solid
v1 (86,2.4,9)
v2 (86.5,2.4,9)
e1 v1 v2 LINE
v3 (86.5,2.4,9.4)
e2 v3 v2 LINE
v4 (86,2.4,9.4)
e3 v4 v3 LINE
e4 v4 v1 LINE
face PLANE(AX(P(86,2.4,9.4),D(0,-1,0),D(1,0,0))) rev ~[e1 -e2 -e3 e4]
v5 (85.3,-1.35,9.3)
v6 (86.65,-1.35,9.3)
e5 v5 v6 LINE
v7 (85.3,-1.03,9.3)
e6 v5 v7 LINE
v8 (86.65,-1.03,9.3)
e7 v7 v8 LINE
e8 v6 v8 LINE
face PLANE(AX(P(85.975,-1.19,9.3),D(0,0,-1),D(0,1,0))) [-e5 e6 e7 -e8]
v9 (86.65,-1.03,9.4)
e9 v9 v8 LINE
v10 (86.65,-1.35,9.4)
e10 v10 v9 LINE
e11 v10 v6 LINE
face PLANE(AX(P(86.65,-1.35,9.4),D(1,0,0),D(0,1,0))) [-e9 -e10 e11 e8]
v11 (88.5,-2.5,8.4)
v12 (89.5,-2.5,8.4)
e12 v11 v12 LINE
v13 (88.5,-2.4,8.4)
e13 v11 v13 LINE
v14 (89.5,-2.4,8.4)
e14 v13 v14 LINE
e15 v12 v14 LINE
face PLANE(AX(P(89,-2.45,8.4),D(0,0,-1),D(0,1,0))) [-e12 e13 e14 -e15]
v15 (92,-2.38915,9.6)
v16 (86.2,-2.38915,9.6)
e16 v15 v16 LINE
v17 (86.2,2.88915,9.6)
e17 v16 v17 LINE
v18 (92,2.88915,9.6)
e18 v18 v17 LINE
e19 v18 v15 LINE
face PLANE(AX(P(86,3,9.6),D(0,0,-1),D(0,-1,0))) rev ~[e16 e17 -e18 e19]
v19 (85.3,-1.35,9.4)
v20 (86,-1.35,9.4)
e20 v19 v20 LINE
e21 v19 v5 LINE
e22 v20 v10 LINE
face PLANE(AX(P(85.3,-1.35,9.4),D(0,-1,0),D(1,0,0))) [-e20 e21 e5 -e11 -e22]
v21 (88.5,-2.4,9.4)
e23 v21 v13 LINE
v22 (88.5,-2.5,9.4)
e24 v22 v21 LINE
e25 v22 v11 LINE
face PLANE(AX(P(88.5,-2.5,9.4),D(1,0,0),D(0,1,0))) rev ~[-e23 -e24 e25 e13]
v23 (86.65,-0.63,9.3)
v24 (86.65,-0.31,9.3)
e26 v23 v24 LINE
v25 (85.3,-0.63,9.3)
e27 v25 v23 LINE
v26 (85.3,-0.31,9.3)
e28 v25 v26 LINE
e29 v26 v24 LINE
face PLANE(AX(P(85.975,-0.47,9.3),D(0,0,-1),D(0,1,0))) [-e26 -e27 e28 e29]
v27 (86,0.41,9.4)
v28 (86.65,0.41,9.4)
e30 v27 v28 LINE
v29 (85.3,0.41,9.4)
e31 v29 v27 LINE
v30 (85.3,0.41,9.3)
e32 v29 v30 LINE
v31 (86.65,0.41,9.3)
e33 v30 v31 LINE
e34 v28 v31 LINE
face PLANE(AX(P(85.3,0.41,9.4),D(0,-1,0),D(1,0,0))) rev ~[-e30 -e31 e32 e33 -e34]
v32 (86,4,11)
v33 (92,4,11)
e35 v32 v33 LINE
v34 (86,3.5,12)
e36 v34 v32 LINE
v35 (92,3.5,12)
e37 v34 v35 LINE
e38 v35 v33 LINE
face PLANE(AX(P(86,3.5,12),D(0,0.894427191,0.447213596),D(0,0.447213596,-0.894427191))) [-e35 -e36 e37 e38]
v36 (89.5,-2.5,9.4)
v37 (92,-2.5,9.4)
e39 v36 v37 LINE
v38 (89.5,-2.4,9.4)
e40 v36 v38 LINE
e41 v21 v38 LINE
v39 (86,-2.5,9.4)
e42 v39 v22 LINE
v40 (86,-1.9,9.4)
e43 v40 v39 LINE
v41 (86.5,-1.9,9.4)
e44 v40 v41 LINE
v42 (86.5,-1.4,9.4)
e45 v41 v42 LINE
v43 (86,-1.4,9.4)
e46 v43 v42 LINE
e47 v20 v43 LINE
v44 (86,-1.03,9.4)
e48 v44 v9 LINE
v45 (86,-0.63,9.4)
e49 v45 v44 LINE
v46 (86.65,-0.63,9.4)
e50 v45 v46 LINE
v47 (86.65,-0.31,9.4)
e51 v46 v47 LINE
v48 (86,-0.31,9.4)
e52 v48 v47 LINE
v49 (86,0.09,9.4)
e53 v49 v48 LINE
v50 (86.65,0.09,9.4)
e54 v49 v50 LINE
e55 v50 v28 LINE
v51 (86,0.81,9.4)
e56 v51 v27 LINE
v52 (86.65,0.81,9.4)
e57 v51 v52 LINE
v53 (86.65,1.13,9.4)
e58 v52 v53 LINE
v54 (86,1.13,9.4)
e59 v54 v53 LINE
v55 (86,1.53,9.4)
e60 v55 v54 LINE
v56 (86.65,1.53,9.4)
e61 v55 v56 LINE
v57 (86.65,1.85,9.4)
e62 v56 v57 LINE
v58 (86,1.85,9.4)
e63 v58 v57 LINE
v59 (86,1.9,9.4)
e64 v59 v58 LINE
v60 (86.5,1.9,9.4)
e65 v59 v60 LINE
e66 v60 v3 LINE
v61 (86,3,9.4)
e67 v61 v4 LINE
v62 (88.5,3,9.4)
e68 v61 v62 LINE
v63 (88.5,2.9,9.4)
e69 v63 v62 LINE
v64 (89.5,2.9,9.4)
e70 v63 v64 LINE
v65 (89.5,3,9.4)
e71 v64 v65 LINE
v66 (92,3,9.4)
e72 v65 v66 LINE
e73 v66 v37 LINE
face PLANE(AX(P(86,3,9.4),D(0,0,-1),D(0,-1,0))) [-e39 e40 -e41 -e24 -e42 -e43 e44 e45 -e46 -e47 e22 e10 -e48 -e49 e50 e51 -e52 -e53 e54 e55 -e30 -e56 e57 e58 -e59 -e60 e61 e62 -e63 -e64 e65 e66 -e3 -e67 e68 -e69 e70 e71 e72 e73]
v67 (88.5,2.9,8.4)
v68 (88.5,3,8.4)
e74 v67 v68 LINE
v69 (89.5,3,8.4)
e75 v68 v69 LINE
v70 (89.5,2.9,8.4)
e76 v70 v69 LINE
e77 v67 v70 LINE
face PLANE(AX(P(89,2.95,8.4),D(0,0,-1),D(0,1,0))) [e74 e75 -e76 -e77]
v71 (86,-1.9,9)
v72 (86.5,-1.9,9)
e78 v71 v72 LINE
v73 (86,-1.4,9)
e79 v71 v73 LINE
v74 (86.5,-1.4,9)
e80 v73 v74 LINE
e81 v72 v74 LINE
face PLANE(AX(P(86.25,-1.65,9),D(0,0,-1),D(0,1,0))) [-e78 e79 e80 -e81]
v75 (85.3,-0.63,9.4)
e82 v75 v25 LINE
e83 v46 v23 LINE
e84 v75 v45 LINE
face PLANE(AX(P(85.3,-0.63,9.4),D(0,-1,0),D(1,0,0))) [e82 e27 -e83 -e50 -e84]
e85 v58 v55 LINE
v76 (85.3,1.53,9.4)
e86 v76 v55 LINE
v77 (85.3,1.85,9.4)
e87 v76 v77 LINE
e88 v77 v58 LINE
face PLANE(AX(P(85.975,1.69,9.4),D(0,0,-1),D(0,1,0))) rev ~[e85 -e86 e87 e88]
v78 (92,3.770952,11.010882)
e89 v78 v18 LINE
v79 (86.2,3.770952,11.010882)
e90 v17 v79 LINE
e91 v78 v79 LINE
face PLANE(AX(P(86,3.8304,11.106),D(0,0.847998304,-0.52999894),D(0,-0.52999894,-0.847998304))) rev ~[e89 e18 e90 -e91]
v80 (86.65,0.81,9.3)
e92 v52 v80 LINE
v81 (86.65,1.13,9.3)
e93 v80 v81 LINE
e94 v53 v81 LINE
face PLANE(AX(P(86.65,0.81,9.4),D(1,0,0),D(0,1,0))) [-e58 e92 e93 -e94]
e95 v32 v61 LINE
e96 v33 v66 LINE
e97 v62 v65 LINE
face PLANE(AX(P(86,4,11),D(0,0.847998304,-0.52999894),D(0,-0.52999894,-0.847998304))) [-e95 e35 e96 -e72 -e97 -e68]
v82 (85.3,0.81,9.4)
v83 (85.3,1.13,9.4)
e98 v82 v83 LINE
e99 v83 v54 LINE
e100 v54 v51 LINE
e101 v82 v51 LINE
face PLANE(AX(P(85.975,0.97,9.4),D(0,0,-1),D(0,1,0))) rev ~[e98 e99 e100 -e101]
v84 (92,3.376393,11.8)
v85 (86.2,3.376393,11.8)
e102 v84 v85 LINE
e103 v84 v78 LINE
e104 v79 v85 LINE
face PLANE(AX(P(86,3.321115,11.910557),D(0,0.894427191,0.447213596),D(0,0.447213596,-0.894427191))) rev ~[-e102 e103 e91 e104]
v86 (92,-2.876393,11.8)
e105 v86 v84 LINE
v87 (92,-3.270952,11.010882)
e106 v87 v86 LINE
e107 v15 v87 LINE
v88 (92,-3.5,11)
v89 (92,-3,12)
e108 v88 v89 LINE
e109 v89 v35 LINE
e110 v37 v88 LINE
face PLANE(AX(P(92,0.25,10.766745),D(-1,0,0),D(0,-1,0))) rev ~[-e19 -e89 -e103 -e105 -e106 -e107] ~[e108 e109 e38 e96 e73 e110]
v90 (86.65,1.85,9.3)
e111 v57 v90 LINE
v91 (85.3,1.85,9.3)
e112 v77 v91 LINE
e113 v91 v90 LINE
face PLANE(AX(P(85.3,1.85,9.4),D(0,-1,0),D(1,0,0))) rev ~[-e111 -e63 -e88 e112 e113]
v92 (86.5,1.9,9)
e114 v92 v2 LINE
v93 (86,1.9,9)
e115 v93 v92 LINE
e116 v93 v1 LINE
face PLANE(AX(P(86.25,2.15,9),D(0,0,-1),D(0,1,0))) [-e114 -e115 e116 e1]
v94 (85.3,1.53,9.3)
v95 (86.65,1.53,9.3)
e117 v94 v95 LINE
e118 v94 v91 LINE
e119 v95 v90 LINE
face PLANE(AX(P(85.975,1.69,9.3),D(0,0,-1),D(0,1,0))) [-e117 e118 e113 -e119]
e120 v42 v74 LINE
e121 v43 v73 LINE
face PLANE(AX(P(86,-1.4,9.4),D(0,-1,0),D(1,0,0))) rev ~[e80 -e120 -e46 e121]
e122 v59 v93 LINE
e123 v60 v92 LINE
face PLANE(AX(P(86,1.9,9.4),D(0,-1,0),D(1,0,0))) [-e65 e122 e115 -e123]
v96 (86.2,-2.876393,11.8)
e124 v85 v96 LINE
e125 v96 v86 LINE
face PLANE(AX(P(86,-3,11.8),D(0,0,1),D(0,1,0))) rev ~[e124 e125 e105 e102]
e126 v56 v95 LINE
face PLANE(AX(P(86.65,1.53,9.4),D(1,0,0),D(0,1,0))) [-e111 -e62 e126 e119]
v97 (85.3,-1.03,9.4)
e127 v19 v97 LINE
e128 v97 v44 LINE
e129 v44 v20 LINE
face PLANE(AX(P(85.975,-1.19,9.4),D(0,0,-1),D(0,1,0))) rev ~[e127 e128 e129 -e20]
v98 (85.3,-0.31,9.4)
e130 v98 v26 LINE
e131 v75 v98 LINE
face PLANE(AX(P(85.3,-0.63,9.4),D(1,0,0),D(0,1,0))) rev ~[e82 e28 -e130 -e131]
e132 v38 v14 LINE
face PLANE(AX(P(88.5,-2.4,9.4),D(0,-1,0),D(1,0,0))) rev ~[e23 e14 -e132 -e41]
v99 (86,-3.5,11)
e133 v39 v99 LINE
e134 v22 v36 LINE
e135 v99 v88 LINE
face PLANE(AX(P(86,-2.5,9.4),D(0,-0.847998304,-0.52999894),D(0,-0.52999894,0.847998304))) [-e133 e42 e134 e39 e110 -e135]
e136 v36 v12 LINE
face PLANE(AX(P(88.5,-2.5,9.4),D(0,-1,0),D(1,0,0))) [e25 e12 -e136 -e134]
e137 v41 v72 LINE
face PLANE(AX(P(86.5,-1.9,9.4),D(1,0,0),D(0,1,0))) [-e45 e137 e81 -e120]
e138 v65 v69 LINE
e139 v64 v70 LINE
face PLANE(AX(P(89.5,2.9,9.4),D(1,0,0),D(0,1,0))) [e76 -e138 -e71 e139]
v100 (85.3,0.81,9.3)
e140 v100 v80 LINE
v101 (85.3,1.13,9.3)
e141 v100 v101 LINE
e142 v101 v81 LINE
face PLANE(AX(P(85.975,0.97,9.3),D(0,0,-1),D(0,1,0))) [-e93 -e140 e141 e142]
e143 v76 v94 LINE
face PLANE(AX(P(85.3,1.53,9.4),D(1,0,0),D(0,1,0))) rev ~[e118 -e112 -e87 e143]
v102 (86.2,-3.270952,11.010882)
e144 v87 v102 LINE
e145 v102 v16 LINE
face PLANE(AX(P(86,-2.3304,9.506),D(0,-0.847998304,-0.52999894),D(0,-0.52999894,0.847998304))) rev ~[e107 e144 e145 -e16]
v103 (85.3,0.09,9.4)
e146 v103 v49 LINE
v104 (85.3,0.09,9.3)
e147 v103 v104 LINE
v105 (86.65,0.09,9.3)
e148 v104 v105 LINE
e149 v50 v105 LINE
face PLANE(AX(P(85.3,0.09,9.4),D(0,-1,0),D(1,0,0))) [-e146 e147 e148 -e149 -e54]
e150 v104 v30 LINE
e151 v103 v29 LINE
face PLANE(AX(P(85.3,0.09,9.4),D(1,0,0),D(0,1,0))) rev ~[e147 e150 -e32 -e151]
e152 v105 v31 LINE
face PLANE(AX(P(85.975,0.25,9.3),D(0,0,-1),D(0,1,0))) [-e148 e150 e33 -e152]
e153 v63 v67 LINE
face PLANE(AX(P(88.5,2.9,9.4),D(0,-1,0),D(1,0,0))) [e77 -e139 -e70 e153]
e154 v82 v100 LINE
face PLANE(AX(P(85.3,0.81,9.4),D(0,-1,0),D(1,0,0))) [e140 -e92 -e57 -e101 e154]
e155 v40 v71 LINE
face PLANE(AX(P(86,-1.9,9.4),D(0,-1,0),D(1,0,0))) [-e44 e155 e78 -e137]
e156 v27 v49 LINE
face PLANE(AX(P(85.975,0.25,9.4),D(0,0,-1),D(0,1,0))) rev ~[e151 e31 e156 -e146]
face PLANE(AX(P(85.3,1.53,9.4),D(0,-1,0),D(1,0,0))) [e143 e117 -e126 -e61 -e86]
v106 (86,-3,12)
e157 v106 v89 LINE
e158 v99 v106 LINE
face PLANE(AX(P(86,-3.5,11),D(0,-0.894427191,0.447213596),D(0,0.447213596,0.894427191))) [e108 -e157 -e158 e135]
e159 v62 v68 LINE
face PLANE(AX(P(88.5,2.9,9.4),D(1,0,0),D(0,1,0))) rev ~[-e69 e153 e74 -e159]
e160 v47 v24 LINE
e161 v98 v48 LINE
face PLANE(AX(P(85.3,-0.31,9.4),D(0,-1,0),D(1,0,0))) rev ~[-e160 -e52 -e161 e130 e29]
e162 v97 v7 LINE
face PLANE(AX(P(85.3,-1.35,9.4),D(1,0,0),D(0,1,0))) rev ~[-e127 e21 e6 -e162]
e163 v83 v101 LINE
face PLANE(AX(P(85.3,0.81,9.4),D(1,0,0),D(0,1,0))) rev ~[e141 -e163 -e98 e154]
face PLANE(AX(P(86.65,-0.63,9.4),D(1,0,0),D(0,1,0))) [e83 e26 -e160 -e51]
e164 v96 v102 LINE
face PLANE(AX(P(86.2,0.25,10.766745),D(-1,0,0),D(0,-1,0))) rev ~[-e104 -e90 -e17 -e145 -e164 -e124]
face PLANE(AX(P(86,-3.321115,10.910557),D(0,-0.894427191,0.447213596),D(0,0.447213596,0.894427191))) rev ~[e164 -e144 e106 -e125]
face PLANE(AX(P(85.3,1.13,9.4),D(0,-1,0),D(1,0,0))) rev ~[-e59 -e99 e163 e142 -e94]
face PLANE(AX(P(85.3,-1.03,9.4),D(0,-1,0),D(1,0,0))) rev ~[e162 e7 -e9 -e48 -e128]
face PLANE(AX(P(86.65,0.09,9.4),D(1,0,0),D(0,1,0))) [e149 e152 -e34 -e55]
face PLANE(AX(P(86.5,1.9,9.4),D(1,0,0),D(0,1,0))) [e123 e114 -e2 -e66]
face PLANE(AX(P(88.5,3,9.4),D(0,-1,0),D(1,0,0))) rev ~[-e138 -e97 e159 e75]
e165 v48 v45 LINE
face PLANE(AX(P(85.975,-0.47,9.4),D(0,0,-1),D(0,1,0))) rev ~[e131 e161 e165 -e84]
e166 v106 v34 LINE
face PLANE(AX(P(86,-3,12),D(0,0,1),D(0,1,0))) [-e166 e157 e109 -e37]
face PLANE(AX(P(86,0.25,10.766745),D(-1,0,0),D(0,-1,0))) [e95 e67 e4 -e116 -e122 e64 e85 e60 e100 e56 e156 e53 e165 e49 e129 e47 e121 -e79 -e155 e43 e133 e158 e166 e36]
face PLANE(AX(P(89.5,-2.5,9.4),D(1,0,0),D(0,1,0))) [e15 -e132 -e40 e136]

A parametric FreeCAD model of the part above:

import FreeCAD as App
import Part
import Sketcher
Q = App.Units.Quantity


def faces_at(feature, points):
    """Names of the faces that lie closest to the given points."""
    faces = feature.Shape.Faces
    near = lambda p: min(range(len(faces)), key=lambda i: faces[i].distToShape(Part.Vertex(*p))[0])
    return sorted({f"Face{near(p) + 1}" for p in points})


def add_polygon(sketch, points):
    """Adds a closed chain of lines whose ends are joined by coincident constraints."""
    first, n = sketch.GeometryCount, len(points)
    for a, b in zip(points, points[1:] + points[:1]):
        sketch.addGeometry(Part.LineSegment(App.Vector(*a, 0), App.Vector(*b, 0)), False)
    for i in range(n):
        sketch.addConstraint(Sketcher.Constraint("Coincident", first + i, 2, first + (i + 1) % n, 1))

doc = App.newDocument("Part")
params = doc.addObject("Spreadsheet::Sheet", "Params")
for row, (alias, value) in enumerate([
    ("sketch1_width", "6.5 mm"),
    ("sketch1_width2", "5.5 mm"),
    ("pad1_length", "6 mm"),
    ("thickness_wall", "0.2 mm"),
    ("sketch2_height", "1 mm"),
    ("sketch2_width", "0.1 mm"),
    ("pad2_length", "1 mm"),
    ("sketch3_width", "0.5 mm"),
    ("pad3_length", "0.4 mm"),
    ("sketch4_width", "0.32 mm"),
    ("sketch4_height", "1.35 mm"),
    ("pad4_length", "0.1 mm"),
], start=1):
    params.set(f"A{row}", alias)
    params.set(f"B{row}", "=" + value)
    params.setAlias(f"B{row}", alias)

body = doc.addObject("PartDesign::Body", "Body")

# Sketch on XY plane
sketch1 = body.newObject("Sketcher::SketchObject", "Sketch")
sketch1.AttachmentSupport = (doc.getObject("XY_Plane"), [""])
sketch1.MapMode = "FlatFace"
add_polygon(sketch1, [(6.5, 0), (0, 0), (-0.5, -1), (0.5, -2.6), (6, -2.6), (7, -1)])  # lines 0-5
sketch1.addConstraint([
    Sketcher.Constraint("Horizontal", 0),
    Sketcher.Constraint("Horizontal", 3),
    Sketcher.Constraint("Coincident", 0, 2, -1, 1),
    Sketcher.Constraint("Horizontal", 1, 2, 4, 2),
    Sketcher.Constraint("Equal", 2, 4),
    Sketcher.Constraint("Equal", 1, 5),
    Sketcher.Constraint("DistanceX", 0, 2, 0, 1, Q("6.5 mm")),
    Sketcher.Constraint("DistanceX", 3, 1, 3, 2, Q("5.5 mm")),
    Sketcher.Constraint("DistanceY", 1, 2, -1, 1, Q("1 mm")),
    Sketcher.Constraint("DistanceX", -1, 1, 4, 2, Q("7 mm")),
    Sketcher.Constraint("DistanceY", 2, 2, -1, 1, Q("2.6 mm")),
])
sketch1.setExpression("Constraints[12]", "Params.sketch1_width")
sketch1.setExpression("Constraints[13]", "Params.sketch1_width2")
pad1 = body.newObject("PartDesign::Pad", "Pad")
pad1.Profile = sketch1
pad1.setExpression("Length", "Params.pad1_length")
doc.recompute()

thickness = body.newObject("PartDesign::Thickness", "Thickness")
thickness.Base = (pad1, faces_at(pad1, [(3.25, -1.3, 6)]))
thickness.setExpression("Value", "Params.thickness_wall")
thickness.Reversed = True
thickness.Join = "Arc"

# Sketch on XZ plane
sketch2 = body.newObject("Sketcher::SketchObject", "Sketch001")
sketch2.AttachmentSupport = (doc.getObject("XZ_Plane"), [""])
sketch2.MapMode = "FlatFace"
sketch2.AttachmentOffset = App.Placement(App.Vector(0, 0, 2.6), App.Rotation())
add_polygon(sketch2, [(5.9, 3.5), (5.9, 2.5), (6, 2.5), (6, 3.5)])  # lines 0-3
add_polygon(sketch2, [(0.5, 3.5), (0.5, 2.5), (0.6, 2.5), (0.6, 3.5)])  # lines 4-7
sketch2.addConstraint([
    Sketcher.Constraint("Vertical", 0),
    Sketcher.Constraint("Horizontal", 1),
    Sketcher.Constraint("Vertical", 2),
    Sketcher.Constraint("Horizontal", 3),
    Sketcher.Constraint("Vertical", 4),
    Sketcher.Constraint("Horizontal", 5),
    Sketcher.Constraint("Vertical", 6),
    Sketcher.Constraint("Horizontal", 7),
    Sketcher.Constraint("Horizontal", 1, 2, 4, 2),
    Sketcher.Constraint("Horizontal", 3, 2, 6, 2),
    Sketcher.Constraint("Equal", 3, 5),
    Sketcher.Constraint("DistanceY", 0, 2, 0, 1, Q("1 mm")),
    Sketcher.Constraint("DistanceX", 1, 1, 1, 2, Q("0.1 mm")),
    Sketcher.Constraint("DistanceX", -1, 1, 1, 2, Q("6 mm")),
    Sketcher.Constraint("DistanceY", -1, 1, 0, 2, Q("2.5 mm")),
    Sketcher.Constraint("DistanceX", -1, 1, 4, 2, Q("0.5 mm")),
])
sketch2.setExpression("Constraints[19]", "Params.sketch2_height")
sketch2.setExpression("Constraints[20]", "Params.sketch2_width")
pad2 = body.newObject("PartDesign::Pad", "Pad001")
pad2.Profile = sketch2
pad2.setExpression("Length", "Params.pad2_length")

# Sketch on XZ plane
sketch3 = body.newObject("Sketcher::SketchObject", "Sketch002")
sketch3.AttachmentSupport = (doc.getObject("XZ_Plane"), [""])
sketch3.MapMode = "FlatFace"
sketch3.AttachmentOffset = App.Placement(App.Vector(0, 0, 2.6), App.Rotation())
add_polygon(sketch3, [(1.1, 0.5), (1.1, 0), (1.6, 0), (1.6, 0.5)])  # lines 0-3
add_polygon(sketch3, [(4.9, 0.5), (4.9, 0), (5.4, 0), (5.4, 0.5)])  # lines 4-7
sketch3.addConstraint([
    Sketcher.Constraint("Vertical", 0),
    Sketcher.Constraint("Horizontal", 1),
    Sketcher.Constraint("Vertical", 2),
    Sketcher.Constraint("Horizontal", 3),
    Sketcher.Constraint("Vertical", 4),
    Sketcher.Constraint("Horizontal", 5),
    Sketcher.Constraint("Vertical", 6),
    Sketcher.Constraint("Horizontal", 7),
    Sketcher.Constraint("PointOnObject", 0, 2, -1),
    Sketcher.Constraint("PointOnObject", 4, 2, -1),
    Sketcher.Constraint("Horizontal", 3, 2, 6, 2),
    Sketcher.Constraint("Equal", 3, 5),
    Sketcher.Constraint("Equal", 7, 0),
    Sketcher.Constraint("DistanceX", 1, 1, 1, 2, Q("0.5 mm")),
    Sketcher.Constraint("DistanceX", -1, 1, 0, 2, Q("1.1 mm")),
    Sketcher.Constraint("DistanceX", -1, 1, 4, 2, Q("4.9 mm")),
])
sketch3.setExpression("Constraints[21]", "Params.sketch3_width")
pad3 = body.newObject("PartDesign::Pad", "Pad002")
pad3.Profile = sketch3
pad3.setExpression("Length", "Params.pad3_length")

# Sketch on XZ plane
sketch4 = body.newObject("Sketcher::SketchObject", "Sketch003")
sketch4.AttachmentSupport = (doc.getObject("XZ_Plane"), [""])
sketch4.MapMode = "FlatFace"
sketch4.AttachmentOffset = App.Placement(App.Vector(0, 0, 2.6), App.Rotation())
add_polygon(sketch4, [(1.65, 0.65), (1.65, -0.7), (1.97, -0.7), (1.97, 0.65)])  # lines 0-3
add_polygon(sketch4, [(2.37, 0.65), (2.37, -0.7), (2.69, -0.7), (2.69, 0.65)])  # lines 4-7
add_polygon(sketch4, [(3.09, 0.65), (3.09, -0.7), (3.41, -0.7), (3.41, 0.65)])  # lines 8-11
add_polygon(sketch4, [(3.81, 0.65), (3.81, -0.7), (4.13, -0.7), (4.13, 0.65)])  # lines 12-15
add_polygon(sketch4, [(4.53, 0.65), (4.53, -0.7), (4.85, -0.7), (4.85, 0.65)])  # lines 16-19
sketch4.addConstraint([
    Sketcher.Constraint("Vertical", 0),
    Sketcher.Constraint("Horizontal", 1),
    Sketcher.Constraint("Vertical", 2),
    Sketcher.Constraint("Horizontal", 3),
    Sketcher.Constraint("Vertical", 4),
    Sketcher.Constraint("Horizontal", 5),
    Sketcher.Constraint("Vertical", 6),
    Sketcher.Constraint("Horizontal", 7),
    Sketcher.Constraint("Vertical", 8),
    Sketcher.Constraint("Horizontal", 9),
    Sketcher.Constraint("Vertical", 10),
    Sketcher.Constraint("Horizontal", 11),
    Sketcher.Constraint("Vertical", 12),
    Sketcher.Constraint("Horizontal", 13),
    Sketcher.Constraint("Vertical", 14),
    Sketcher.Constraint("Horizontal", 15),
    Sketcher.Constraint("Vertical", 16),
    Sketcher.Constraint("Horizontal", 17),
    Sketcher.Constraint("Vertical", 18),
    Sketcher.Constraint("Horizontal", 19),
    Sketcher.Constraint("Horizontal", 1, 2, 4, 2),
    Sketcher.Constraint("Horizontal", 3, 2, 6, 2),
    Sketcher.Constraint("Horizontal", 5, 2, 8, 2),
    Sketcher.Constraint("Horizontal", 7, 2, 10, 2),
    Sketcher.Constraint("Horizontal", 9, 2, 12, 2),
    Sketcher.Constraint("Horizontal", 11, 2, 14, 2),
    Sketcher.Constraint("Horizontal", 13, 2, 16, 2),
    Sketcher.Constraint("Horizontal", 15, 2, 18, 2),
    Sketcher.Constraint("Equal", 3, 5),
    Sketcher.Constraint("Equal", 7, 9),
    Sketcher.Constraint("Equal", 11, 13),
    Sketcher.Constraint("Equal", 15, 17),
    Sketcher.Constraint("DistanceX", 1, 1, 1, 2, Q("0.32 mm")),
    Sketcher.Constraint("DistanceY", 0, 2, 0, 1, Q("1.35 mm")),
    Sketcher.Constraint("DistanceY", 0, 2, -1, 1, Q("0.7 mm")),
    Sketcher.Constraint("DistanceX", 1, 2, 4, 2, Q("0.4 mm")),
    Sketcher.Constraint("DistanceX", 5, 2, 8, 2, Q("0.4 mm")),
    Sketcher.Constraint("DistanceX", 9, 2, 12, 2, Q("0.4 mm")),
    Sketcher.Constraint("DistanceX", 13, 2, 16, 2, Q("0.4 mm")),
    Sketcher.Constraint("DistanceX", -1, 1, 0, 2, Q("1.65 mm")),
])
sketch4.setExpression("Constraints[52]", "Params.sketch4_width")
sketch4.setExpression("Constraints[53]", "Params.sketch4_height")
pad4 = body.newObject("PartDesign::Pad", "Pad003")
pad4.Profile = sketch4
pad4.setExpression("Length", "Params.pad4_length")
body2 = doc.addObject("PartDesign::Body", "Body001")
doc.recompute()

body.Placement = App.Placement(App.Vector(0, 0, 0), App.Rotation(App.Vector(1, 0, 0), 90))
boolean = body2.newObject("PartDesign::Boolean", "Boolean")
boolean.Type = "Fuse"
boolean.addObjects([body])
body3 = doc.addObject("PartDesign::Body", "Body002")
doc.recompute()

body2.Placement = App.Placement(App.Vector(86, -3, 12), App.Rotation(App.Vector(0, 0, 1), 90))
boolean2 = body3.newObject("PartDesign::Boolean", "Boolean001")
boolean2.Type = "Fuse"
boolean2.addObjects([body2])

doc.recompute()
